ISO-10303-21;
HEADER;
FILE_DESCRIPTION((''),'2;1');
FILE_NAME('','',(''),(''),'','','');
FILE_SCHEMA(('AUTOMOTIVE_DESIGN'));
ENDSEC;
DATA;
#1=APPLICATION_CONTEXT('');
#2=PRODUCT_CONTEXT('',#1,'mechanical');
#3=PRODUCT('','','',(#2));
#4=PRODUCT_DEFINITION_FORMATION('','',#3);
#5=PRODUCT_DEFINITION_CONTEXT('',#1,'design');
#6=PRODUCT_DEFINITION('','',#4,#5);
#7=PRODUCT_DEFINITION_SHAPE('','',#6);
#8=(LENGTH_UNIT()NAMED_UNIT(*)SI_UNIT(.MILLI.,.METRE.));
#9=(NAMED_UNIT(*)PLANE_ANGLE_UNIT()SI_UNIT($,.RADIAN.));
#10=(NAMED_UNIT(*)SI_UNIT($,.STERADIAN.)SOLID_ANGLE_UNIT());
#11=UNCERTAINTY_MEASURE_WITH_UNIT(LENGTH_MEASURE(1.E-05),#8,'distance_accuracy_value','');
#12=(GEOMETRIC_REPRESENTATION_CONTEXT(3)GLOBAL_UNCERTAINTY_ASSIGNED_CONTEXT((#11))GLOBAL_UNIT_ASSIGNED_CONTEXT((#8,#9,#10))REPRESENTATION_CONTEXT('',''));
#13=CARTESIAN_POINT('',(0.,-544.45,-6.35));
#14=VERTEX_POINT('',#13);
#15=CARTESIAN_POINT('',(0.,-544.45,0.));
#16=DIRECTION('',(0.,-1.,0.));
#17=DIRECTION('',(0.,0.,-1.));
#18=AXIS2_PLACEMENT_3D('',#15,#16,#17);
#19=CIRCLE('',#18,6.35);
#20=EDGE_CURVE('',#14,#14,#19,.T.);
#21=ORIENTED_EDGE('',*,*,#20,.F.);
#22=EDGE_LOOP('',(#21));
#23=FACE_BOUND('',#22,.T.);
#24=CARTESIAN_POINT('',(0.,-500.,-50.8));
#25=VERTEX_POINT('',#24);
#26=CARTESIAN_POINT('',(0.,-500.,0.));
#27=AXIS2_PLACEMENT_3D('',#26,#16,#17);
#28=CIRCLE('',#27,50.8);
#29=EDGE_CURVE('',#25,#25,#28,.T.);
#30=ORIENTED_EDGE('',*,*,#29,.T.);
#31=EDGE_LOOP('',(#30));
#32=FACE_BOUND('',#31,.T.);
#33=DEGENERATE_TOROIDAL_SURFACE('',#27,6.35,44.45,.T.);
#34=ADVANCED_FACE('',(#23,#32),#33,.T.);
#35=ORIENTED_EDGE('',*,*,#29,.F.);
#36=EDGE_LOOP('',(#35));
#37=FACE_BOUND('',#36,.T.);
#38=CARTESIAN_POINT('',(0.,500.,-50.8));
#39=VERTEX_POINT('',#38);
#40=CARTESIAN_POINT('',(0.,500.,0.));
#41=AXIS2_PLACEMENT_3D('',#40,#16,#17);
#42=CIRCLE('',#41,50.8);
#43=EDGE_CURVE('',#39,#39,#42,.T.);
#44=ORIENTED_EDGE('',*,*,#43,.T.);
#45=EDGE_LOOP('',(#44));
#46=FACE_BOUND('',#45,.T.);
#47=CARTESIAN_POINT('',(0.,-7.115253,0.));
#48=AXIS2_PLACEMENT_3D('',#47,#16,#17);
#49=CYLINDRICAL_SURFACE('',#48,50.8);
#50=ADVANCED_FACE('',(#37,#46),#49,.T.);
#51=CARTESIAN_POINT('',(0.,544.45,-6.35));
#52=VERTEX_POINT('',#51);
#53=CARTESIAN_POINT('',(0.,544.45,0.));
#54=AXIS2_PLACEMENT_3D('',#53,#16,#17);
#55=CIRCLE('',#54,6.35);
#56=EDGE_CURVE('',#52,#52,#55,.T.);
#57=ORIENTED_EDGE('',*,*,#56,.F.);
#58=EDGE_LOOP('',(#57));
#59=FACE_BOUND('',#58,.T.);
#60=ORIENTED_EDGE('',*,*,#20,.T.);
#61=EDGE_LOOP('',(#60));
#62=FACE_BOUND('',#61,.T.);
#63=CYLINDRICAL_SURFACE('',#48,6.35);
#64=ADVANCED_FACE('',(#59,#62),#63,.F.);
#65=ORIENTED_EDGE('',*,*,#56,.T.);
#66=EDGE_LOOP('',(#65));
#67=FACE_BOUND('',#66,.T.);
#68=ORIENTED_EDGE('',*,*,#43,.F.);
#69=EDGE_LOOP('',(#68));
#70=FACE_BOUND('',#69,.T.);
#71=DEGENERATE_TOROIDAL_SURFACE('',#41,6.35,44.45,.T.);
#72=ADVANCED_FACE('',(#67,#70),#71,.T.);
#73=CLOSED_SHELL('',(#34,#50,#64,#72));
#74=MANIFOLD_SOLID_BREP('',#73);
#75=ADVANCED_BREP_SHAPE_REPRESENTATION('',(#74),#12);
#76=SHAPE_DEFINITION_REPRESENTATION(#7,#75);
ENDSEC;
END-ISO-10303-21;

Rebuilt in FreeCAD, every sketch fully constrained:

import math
import FreeCAD as App
import Part
import Sketcher

V = App.Vector
Q = App.Units.Quantity

doc = App.newDocument("Part")
body = doc.addObject("PartDesign::Body", "Body")

# Sketch on XY plane
sketch1 = body.newObject("Sketcher::SketchObject", "Sketch")
sketch1.AttachmentSupport = (doc.getObject("XY_Plane"), [""])
sketch1.MapMode = "FlatFace"
sketch1.addGeometry([
    Part.LineSegment(V(6, 544, 0), V(6, -544, 0)),
    Part.ArcOfCircle(Part.Circle(V(6, -500, 0), V(0, 0, 1), 44), math.radians(-90), math.radians(0)),
    Part.LineSegment(V(51, -500, 0), V(51, 500, 0)),
    Part.ArcOfCircle(Part.Circle(V(6, 500, 0), V(0, 0, 1), 44), math.radians(0), math.radians(90)),
], False)
sketch1.addConstraint([
    Sketcher.Constraint("Coincident", 0, 2, 1, 1),
    Sketcher.Constraint("Tangent", 1, 2, 2, 1),
    Sketcher.Constraint("Tangent", 2, 2, 3, 1),
    Sketcher.Constraint("Coincident", 3, 2, 0, 1),
    Sketcher.Constraint("Vertical", 0),
    Sketcher.Constraint("Vertical", 2),
    Sketcher.Constraint("Equal", 1, 3),
    Sketcher.Constraint("Vertical", 3, 3, 0, 2),
    Sketcher.Constraint("DistanceY", 2, 1, 2, 2, Q("1000 mm")),
    Sketcher.Constraint("Radius", 1, Q("44.45 mm")),
    Sketcher.Constraint("DistanceY", 1, 3, -1, 1, Q("500 mm")),
    Sketcher.Constraint("DistanceX", -1, 1, 1, 2, Q("50.8 mm")),
])
revolution = body.newObject("PartDesign::Revolution", "Revolution")
revolution.Profile = sketch1
revolution.ReferenceAxis = (sketch1, ["V_Axis"])
revolution.Angle = 360

doc.recompute()
